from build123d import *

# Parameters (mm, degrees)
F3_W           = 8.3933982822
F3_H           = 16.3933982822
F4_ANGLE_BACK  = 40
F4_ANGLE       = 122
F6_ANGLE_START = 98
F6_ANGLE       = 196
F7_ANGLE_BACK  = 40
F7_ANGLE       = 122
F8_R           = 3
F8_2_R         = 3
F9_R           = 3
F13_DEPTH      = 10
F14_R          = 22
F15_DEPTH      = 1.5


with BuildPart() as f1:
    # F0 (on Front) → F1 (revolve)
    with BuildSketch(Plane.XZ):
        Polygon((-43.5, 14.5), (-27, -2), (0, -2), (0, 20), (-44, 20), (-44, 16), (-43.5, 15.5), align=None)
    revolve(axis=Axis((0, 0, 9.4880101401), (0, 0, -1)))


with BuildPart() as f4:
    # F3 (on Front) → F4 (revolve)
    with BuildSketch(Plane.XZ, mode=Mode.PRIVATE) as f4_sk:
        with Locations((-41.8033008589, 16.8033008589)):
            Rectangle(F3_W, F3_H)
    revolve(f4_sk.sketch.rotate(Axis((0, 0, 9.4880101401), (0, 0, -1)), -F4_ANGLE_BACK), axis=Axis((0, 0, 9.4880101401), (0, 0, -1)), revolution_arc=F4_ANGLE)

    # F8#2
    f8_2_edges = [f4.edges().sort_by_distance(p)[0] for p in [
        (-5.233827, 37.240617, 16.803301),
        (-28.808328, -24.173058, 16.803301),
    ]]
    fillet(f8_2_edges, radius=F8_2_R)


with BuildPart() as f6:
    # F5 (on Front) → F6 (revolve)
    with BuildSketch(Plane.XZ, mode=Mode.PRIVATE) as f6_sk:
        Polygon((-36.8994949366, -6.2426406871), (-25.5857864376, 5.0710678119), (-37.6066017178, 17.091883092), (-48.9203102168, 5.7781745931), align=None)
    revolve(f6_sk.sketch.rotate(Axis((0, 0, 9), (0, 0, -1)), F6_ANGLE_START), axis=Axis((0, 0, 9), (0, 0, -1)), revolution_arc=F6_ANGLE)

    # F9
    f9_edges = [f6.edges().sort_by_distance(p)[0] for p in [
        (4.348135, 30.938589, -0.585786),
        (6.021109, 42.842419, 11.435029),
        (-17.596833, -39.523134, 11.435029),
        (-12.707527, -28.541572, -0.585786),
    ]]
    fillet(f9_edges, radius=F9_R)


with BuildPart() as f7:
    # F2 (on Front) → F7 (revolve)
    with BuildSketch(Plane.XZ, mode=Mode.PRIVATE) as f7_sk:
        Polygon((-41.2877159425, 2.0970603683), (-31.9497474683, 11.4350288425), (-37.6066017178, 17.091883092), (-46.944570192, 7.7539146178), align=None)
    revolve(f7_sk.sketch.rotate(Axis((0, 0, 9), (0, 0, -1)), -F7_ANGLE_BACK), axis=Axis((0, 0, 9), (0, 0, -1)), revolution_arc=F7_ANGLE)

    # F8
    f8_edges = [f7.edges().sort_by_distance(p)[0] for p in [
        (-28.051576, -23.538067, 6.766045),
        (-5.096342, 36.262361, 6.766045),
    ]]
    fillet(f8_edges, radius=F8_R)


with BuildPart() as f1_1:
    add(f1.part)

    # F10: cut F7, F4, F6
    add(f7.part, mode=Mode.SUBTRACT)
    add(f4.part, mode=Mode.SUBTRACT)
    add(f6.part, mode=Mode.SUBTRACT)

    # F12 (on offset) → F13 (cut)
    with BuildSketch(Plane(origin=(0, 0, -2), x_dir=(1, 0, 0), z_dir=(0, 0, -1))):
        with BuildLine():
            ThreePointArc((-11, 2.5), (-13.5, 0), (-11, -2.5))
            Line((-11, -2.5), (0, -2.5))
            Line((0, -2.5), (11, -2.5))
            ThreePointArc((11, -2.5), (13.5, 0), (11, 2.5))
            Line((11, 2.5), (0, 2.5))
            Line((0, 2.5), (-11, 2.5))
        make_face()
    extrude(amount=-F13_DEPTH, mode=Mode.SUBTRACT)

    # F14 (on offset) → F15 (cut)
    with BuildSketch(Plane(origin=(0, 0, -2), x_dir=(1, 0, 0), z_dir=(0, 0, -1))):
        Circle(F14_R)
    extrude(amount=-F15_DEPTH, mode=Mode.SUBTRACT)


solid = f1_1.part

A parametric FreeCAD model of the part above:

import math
import FreeCAD as App
import Part
import Sketcher
from FreeCAD import Vector
Q = App.Units.Quantity


def edges_at(feature, points):
    """Names of the edges that pass closest to the given points."""
    edges = feature.Shape.Edges
    near = lambda p: min(range(len(edges)), key=lambda i: edges[i].distToShape(Part.Vertex(*p))[0])
    return sorted({f"Edge{near(p) + 1}" for p in points})

doc = App.newDocument("Part")
body = doc.addObject("PartDesign::Body", "Body")

# Sketch on XZ plane
sketch1 = doc.addObject("Sketcher::SketchObject", "Sketch")
body.addObject(sketch1)
sketch1.AttachmentSupport = (doc.XZ_Plane, [""])
sketch1.MapMode = "FlatFace"
sketch1.addGeometry(Part.LineSegment(Vector(-43.5, 14.5, 0), Vector(-27, -2, 0)), False)
sketch1.addGeometry(Part.LineSegment(Vector(-27, -2, 0), Vector(0, -2, 0)), False)
sketch1.addGeometry(Part.LineSegment(Vector(0, -2, 0), Vector(0, 20, 0)), False)
sketch1.addGeometry(Part.LineSegment(Vector(0, 20, 0), Vector(-44, 20, 0)), False)
sketch1.addGeometry(Part.LineSegment(Vector(-44, 20, 0), Vector(-44, 16, 0)), False)
sketch1.addGeometry(Part.LineSegment(Vector(-44, 16, 0), Vector(-43.5, 15.5, 0)), False)
sketch1.addGeometry(Part.LineSegment(Vector(-43.5, 15.5, 0), Vector(-43.5, 14.5, 0)), False)
sketch1.addConstraint(Sketcher.Constraint("Coincident", 0, 2, 1, 1))
sketch1.addConstraint(Sketcher.Constraint("Coincident", 1, 2, 2, 1))
sketch1.addConstraint(Sketcher.Constraint("Coincident", 2, 2, 3, 1))
sketch1.addConstraint(Sketcher.Constraint("Coincident", 3, 2, 4, 1))
sketch1.addConstraint(Sketcher.Constraint("Coincident", 4, 2, 5, 1))
sketch1.addConstraint(Sketcher.Constraint("Coincident", 5, 2, 6, 1))
sketch1.addConstraint(Sketcher.Constraint("Coincident", 6, 2, 0, 1))
sketch1.addConstraint(Sketcher.Constraint("Horizontal", 1))
sketch1.addConstraint(Sketcher.Constraint("Vertical", 2))
sketch1.addConstraint(Sketcher.Constraint("Horizontal", 3))
sketch1.addConstraint(Sketcher.Constraint("Vertical", 4))
sketch1.addConstraint(Sketcher.Constraint("Vertical", 6))
sketch1.addConstraint(Sketcher.Constraint("PointOnObject", 1, 2, -2))
sketch1.addConstraint(Sketcher.Constraint("Parallel", 0, 5))
sketch1.addConstraint(Sketcher.Constraint("DistanceX", 1, 1, 1, 2, Q("27 mm")))
sketch1.addConstraint(Sketcher.Constraint("DistanceX", 3, 2, 3, 1, Q("44 mm")))
sketch1.addConstraint(Sketcher.Constraint("DistanceY", 2, 1, 2, 2, Q("22 mm")))
sketch1.addConstraint(Sketcher.Constraint("DistanceY", 4, 2, 4, 1, Q("4 mm")))
sketch1.addConstraint(Sketcher.Constraint("DistanceY", 6, 2, 6, 1, Q("1 mm")))
sketch1.addConstraint(Sketcher.Constraint("DistanceY", 0, 2, -1, 1, Q("2 mm")))
sketch1.addConstraint(Sketcher.Constraint("DistanceX", 5, 2, -1, 1, Q("43.5 mm")))
revolution = doc.addObject("PartDesign::Revolution", "Revolution")
body.addObject(revolution)
revolution.Profile = sketch1
revolution.ReferenceAxis = (sketch1, ["V_Axis"])
revolution.Angle = 360
body2 = doc.addObject("PartDesign::Body", "Body001")

# Sketch on an angled plane
sketch2 = doc.addObject("Sketcher::SketchObject", "Sketch001")
body2.addObject(sketch2)
sketch2.Placement = App.Placement(Vector(0, 0, 0), App.Rotation(Vector(0.766044443, 0.64278761, 0), Vector(0, 0, 1), Vector(0.64278761, -0.766044443, 0), "ZXY"))
sketch2.addGeometry(Part.LineSegment(Vector(-46, 25, 0), Vector(-46, 9, 0)), False)
sketch2.addGeometry(Part.LineSegment(Vector(-46, 9, 0), Vector(-38, 9, 0)), False)
sketch2.addGeometry(Part.LineSegment(Vector(-38, 9, 0), Vector(-38, 25, 0)), False)
sketch2.addGeometry(Part.LineSegment(Vector(-38, 25, 0), Vector(-46, 25, 0)), False)
sketch2.addConstraint(Sketcher.Constraint("Coincident", 0, 2, 1, 1))
sketch2.addConstraint(Sketcher.Constraint("Coincident", 1, 2, 2, 1))
sketch2.addConstraint(Sketcher.Constraint("Coincident", 2, 2, 3, 1))
sketch2.addConstraint(Sketcher.Constraint("Coincident", 3, 2, 0, 1))
sketch2.addConstraint(Sketcher.Constraint("Vertical", 0))
sketch2.addConstraint(Sketcher.Constraint("Horizontal", 1))
sketch2.addConstraint(Sketcher.Constraint("Vertical", 2))
sketch2.addConstraint(Sketcher.Constraint("Horizontal", 3))
sketch2.addConstraint(Sketcher.Constraint("DistanceX", 0, 2, -1, 1, Q("46 mm")))
sketch2.addConstraint(Sketcher.Constraint("DistanceY", -1, 1, 2, 2, Q("25 mm")))
sketch2.addConstraint(Sketcher.Constraint("DistanceX", 1, 1, 1, 2, Q("8.393398 mm")))
sketch2.addConstraint(Sketcher.Constraint("DistanceY", 0, 2, 0, 1, Q("16.393398 mm")))
revolution2 = doc.addObject("PartDesign::Revolution", "Revolution001")
body2.addObject(revolution2)
revolution2.Profile = sketch2
revolution2.ReferenceAxis = (sketch2, ["V_Axis"])
revolution2.Angle = 122
revolution2.Reversed = True
doc.recompute()

fillet = doc.addObject("PartDesign::Fillet", "Fillet")
body2.addObject(fillet)
fillet.Base = (revolution2, edges_at(revolution2, [(-5.234, 37.241, 16.803), (-28.808, -24.173, 16.803)]))
fillet.Radius = 3
body3 = doc.addObject("PartDesign::Body", "Body002")

# Sketch on an angled plane
sketch3 = doc.addObject("Sketcher::SketchObject", "Sketch002")
body3.addObject(sketch3)
sketch3.Placement = App.Placement(Vector(0, 0, 0), App.Rotation(Vector(-0.139173101, -0.990268069, 0), Vector(0, 0, 1.000000001), Vector(-0.990268069, 0.139173101, 0), "ZXY"))
sketch3.addGeometry(Part.LineSegment(Vector(-37, -6, 0), Vector(-26, 5, 0)), False)
sketch3.addGeometry(Part.LineSegment(Vector(-26, 5, 0), Vector(-38, 17, 0)), False)
sketch3.addGeometry(Part.LineSegment(Vector(-38, 17, 0), Vector(-49, 6, 0)), False)
sketch3.addGeometry(Part.LineSegment(Vector(-49, 6, 0), Vector(-37, -6, 0)), False)
sketch3.addConstraint(Sketcher.Constraint("Coincident", 0, 2, 1, 1))
sketch3.addConstraint(Sketcher.Constraint("Coincident", 1, 2, 2, 1))
sketch3.addConstraint(Sketcher.Constraint("Coincident", 2, 2, 3, 1))
sketch3.addConstraint(Sketcher.Constraint("Coincident", 3, 2, 0, 1))
sketch3.addConstraint(Sketcher.Constraint("Perpendicular", 0, 1))
sketch3.addConstraint(Sketcher.Constraint("Perpendicular", 1, 2))
sketch3.addConstraint(Sketcher.Constraint("Perpendicular", 2, 3))
sketch3.addConstraint(Sketcher.Constraint("Angle", 0, Q("45 deg")))
sketch3.addConstraint(Sketcher.Constraint("Distance", 0, Q("16 mm")))
sketch3.addConstraint(Sketcher.Constraint("Distance", 1, Q("17 mm")))
sketch3.addConstraint(Sketcher.Constraint("DistanceX", 1, 2, -1, 1, Q("37.606602 mm")))
sketch3.addConstraint(Sketcher.Constraint("DistanceY", 3, 2, -1, 1, Q("6.242641 mm")))
revolution3 = doc.addObject("PartDesign::Revolution", "Revolution002")
body3.addObject(revolution3)
revolution3.Profile = sketch3
revolution3.ReferenceAxis = (sketch3, ["V_Axis"])
revolution3.Angle = 196
revolution3.Reversed = True
doc.recompute()

fillet2 = doc.addObject("PartDesign::Fillet", "Fillet001")
body3.addObject(fillet2)
fillet2.Base = (revolution3, edges_at(revolution3, [
    (4.348, 30.939, -0.586),
    (6.021, 42.842, 11.435),
    (-17.597, -39.523, 11.435),
    (-12.708, -28.542, -0.586),
]))
fillet2.Radius = 3
body4 = doc.addObject("PartDesign::Body", "Body003")

# Sketch on an angled plane
sketch4 = doc.addObject("Sketcher::SketchObject", "Sketch003")
body4.addObject(sketch4)
sketch4.Placement = App.Placement(Vector(0, 0, 0), App.Rotation(Vector(0.766044443, 0.64278761, 0), Vector(0, 0, 1), Vector(0.64278761, -0.766044443, 0), "ZXY"))
sketch4.addGeometry(Part.LineSegment(Vector(-41, 2, 0), Vector(-32, 11, 0)), False)
sketch4.addGeometry(Part.LineSegment(Vector(-32, 11, 0), Vector(-38, 17, 0)), False)
sketch4.addGeometry(Part.LineSegment(Vector(-38, 17, 0), Vector(-47, 8, 0)), False)
sketch4.addGeometry(Part.LineSegment(Vector(-47, 8, 0), Vector(-41, 2, 0)), False)
sketch4.addConstraint(Sketcher.Constraint("Coincident", 0, 2, 1, 1))
sketch4.addConstraint(Sketcher.Constraint("Coincident", 1, 2, 2, 1))
sketch4.addConstraint(Sketcher.Constraint("Coincident", 2, 2, 3, 1))
sketch4.addConstraint(Sketcher.Constraint("Coincident", 3, 2, 0, 1))
sketch4.addConstraint(Sketcher.Constraint("Perpendicular", 0, 1))
sketch4.addConstraint(Sketcher.Constraint("Perpendicular", 1, 2))
sketch4.addConstraint(Sketcher.Constraint("Perpendicular", 2, 3))
sketch4.addConstraint(Sketcher.Constraint("Angle", 0, Q("45 deg")))
sketch4.addConstraint(Sketcher.Constraint("Distance", 1, Q("8 mm")))
sketch4.addConstraint(Sketcher.Constraint("DistanceX", 1, 2, -1, 1, Q("37.606602 mm")))
sketch4.addConstraint(Sketcher.Constraint("Distance", 0, Q("13.205882 mm")))
sketch4.addConstraint(Sketcher.Constraint("DistanceY", -1, 1, 0, 2, Q("11.435029 mm")))
revolution4 = doc.addObject("PartDesign::Revolution", "Revolution003")
body4.addObject(revolution4)
revolution4.Profile = sketch4
revolution4.ReferenceAxis = (sketch4, ["V_Axis"])
revolution4.Angle = 122
revolution4.Reversed = True
doc.recompute()

fillet3 = doc.addObject("PartDesign::Fillet", "Fillet002")
body4.addObject(fillet3)
fillet3.Base = (revolution4, edges_at(revolution4, [(-28.052, -23.538, 6.766), (-5.096, 36.262, 6.766)]))
fillet3.Radius = 3
doc.recompute()

boolean = doc.addObject("PartDesign::Boolean", "Boolean")
body.addObject(boolean)
boolean.Type = "Cut"
boolean.addObjects([body4])
doc.recompute()

boolean2 = doc.addObject("PartDesign::Boolean", "Boolean001")
body.addObject(boolean2)
boolean2.Type = "Cut"
boolean2.addObjects([body2])
doc.recompute()

boolean3 = doc.addObject("PartDesign::Boolean", "Boolean002")
body.addObject(boolean3)
boolean3.Type = "Cut"
boolean3.addObjects([body3])

# Sketch on XY plane
sketch5 = doc.addObject("Sketcher::SketchObject", "Sketch004")
body.addObject(sketch5)
sketch5.AttachmentSupport = (doc.XY_Plane, [""])
sketch5.MapMode = "FlatFace"
sketch5.AttachmentOffset = App.Placement(Vector(0, 0, -2), App.Rotation())
sketch5.addGeometry(Part.ArcOfCircle(Part.Circle(Vector(-11, 0, 0), Vector(0, 0, 1), 2.5), math.radians(90), math.radians(270)), False)
sketch5.addGeometry(Part.LineSegment(Vector(-11, 2.5, 0), Vector(11, 2.5, 0)), False)
sketch5.addGeometry(Part.ArcOfCircle(Part.Circle(Vector(11, 0, 0), Vector(0, 0, 1), 2.5), math.radians(-90), math.radians(90)), False)
sketch5.addGeometry(Part.LineSegment(Vector(11, -2.5, 0), Vector(-11, -2.5, 0)), False)
sketch5.addConstraint(Sketcher.Constraint("Tangent", 0, 1, 1, 1))
sketch5.addConstraint(Sketcher.Constraint("Tangent", 1, 2, 2, 2))
sketch5.addConstraint(Sketcher.Constraint("Tangent", 2, 1, 3, 1))
sketch5.addConstraint(Sketcher.Constraint("Tangent", 3, 2, 0, 2))
sketch5.addConstraint(Sketcher.Constraint("Horizontal", 1))
sketch5.addConstraint(Sketcher.Constraint("Horizontal", 3))
sketch5.addConstraint(Sketcher.Constraint("Symmetric", 0, 3, 2, 3, -1, 1))
sketch5.addConstraint(Sketcher.Constraint("Radius", 0, Q("2.5 mm")))
sketch5.addConstraint(Sketcher.Constraint("DistanceX", 1, 1, 1, 2, Q("22 mm")))
pocket1 = doc.addObject("PartDesign::Pocket", "Pocket")
body.addObject(pocket1)
pocket1.Profile = sketch5
pocket1.Length = 10
pocket1.Reversed = True

# Sketch on XY plane
sketch6 = doc.addObject("Sketcher::SketchObject", "Sketch005")
body.addObject(sketch6)
sketch6.AttachmentSupport = (doc.XY_Plane, [""])
sketch6.MapMode = "FlatFace"
sketch6.AttachmentOffset = App.Placement(Vector(0, 0, -2), App.Rotation())
sketch6.addGeometry(Part.Circle(Vector(0, 0, 0), Vector(0, 0, 1), 22), False)
sketch6.addConstraint(Sketcher.Constraint("Coincident", 0, 3, -1, 1))
sketch6.addConstraint(Sketcher.Constraint("Diameter", 0, Q("44 mm")))
pocket2 = doc.addObject("PartDesign::Pocket", "Pocket001")
body.addObject(pocket2)
pocket2.Profile = sketch6
pocket2.Length = 1.5
pocket2.Reversed = True

doc.recompute()
